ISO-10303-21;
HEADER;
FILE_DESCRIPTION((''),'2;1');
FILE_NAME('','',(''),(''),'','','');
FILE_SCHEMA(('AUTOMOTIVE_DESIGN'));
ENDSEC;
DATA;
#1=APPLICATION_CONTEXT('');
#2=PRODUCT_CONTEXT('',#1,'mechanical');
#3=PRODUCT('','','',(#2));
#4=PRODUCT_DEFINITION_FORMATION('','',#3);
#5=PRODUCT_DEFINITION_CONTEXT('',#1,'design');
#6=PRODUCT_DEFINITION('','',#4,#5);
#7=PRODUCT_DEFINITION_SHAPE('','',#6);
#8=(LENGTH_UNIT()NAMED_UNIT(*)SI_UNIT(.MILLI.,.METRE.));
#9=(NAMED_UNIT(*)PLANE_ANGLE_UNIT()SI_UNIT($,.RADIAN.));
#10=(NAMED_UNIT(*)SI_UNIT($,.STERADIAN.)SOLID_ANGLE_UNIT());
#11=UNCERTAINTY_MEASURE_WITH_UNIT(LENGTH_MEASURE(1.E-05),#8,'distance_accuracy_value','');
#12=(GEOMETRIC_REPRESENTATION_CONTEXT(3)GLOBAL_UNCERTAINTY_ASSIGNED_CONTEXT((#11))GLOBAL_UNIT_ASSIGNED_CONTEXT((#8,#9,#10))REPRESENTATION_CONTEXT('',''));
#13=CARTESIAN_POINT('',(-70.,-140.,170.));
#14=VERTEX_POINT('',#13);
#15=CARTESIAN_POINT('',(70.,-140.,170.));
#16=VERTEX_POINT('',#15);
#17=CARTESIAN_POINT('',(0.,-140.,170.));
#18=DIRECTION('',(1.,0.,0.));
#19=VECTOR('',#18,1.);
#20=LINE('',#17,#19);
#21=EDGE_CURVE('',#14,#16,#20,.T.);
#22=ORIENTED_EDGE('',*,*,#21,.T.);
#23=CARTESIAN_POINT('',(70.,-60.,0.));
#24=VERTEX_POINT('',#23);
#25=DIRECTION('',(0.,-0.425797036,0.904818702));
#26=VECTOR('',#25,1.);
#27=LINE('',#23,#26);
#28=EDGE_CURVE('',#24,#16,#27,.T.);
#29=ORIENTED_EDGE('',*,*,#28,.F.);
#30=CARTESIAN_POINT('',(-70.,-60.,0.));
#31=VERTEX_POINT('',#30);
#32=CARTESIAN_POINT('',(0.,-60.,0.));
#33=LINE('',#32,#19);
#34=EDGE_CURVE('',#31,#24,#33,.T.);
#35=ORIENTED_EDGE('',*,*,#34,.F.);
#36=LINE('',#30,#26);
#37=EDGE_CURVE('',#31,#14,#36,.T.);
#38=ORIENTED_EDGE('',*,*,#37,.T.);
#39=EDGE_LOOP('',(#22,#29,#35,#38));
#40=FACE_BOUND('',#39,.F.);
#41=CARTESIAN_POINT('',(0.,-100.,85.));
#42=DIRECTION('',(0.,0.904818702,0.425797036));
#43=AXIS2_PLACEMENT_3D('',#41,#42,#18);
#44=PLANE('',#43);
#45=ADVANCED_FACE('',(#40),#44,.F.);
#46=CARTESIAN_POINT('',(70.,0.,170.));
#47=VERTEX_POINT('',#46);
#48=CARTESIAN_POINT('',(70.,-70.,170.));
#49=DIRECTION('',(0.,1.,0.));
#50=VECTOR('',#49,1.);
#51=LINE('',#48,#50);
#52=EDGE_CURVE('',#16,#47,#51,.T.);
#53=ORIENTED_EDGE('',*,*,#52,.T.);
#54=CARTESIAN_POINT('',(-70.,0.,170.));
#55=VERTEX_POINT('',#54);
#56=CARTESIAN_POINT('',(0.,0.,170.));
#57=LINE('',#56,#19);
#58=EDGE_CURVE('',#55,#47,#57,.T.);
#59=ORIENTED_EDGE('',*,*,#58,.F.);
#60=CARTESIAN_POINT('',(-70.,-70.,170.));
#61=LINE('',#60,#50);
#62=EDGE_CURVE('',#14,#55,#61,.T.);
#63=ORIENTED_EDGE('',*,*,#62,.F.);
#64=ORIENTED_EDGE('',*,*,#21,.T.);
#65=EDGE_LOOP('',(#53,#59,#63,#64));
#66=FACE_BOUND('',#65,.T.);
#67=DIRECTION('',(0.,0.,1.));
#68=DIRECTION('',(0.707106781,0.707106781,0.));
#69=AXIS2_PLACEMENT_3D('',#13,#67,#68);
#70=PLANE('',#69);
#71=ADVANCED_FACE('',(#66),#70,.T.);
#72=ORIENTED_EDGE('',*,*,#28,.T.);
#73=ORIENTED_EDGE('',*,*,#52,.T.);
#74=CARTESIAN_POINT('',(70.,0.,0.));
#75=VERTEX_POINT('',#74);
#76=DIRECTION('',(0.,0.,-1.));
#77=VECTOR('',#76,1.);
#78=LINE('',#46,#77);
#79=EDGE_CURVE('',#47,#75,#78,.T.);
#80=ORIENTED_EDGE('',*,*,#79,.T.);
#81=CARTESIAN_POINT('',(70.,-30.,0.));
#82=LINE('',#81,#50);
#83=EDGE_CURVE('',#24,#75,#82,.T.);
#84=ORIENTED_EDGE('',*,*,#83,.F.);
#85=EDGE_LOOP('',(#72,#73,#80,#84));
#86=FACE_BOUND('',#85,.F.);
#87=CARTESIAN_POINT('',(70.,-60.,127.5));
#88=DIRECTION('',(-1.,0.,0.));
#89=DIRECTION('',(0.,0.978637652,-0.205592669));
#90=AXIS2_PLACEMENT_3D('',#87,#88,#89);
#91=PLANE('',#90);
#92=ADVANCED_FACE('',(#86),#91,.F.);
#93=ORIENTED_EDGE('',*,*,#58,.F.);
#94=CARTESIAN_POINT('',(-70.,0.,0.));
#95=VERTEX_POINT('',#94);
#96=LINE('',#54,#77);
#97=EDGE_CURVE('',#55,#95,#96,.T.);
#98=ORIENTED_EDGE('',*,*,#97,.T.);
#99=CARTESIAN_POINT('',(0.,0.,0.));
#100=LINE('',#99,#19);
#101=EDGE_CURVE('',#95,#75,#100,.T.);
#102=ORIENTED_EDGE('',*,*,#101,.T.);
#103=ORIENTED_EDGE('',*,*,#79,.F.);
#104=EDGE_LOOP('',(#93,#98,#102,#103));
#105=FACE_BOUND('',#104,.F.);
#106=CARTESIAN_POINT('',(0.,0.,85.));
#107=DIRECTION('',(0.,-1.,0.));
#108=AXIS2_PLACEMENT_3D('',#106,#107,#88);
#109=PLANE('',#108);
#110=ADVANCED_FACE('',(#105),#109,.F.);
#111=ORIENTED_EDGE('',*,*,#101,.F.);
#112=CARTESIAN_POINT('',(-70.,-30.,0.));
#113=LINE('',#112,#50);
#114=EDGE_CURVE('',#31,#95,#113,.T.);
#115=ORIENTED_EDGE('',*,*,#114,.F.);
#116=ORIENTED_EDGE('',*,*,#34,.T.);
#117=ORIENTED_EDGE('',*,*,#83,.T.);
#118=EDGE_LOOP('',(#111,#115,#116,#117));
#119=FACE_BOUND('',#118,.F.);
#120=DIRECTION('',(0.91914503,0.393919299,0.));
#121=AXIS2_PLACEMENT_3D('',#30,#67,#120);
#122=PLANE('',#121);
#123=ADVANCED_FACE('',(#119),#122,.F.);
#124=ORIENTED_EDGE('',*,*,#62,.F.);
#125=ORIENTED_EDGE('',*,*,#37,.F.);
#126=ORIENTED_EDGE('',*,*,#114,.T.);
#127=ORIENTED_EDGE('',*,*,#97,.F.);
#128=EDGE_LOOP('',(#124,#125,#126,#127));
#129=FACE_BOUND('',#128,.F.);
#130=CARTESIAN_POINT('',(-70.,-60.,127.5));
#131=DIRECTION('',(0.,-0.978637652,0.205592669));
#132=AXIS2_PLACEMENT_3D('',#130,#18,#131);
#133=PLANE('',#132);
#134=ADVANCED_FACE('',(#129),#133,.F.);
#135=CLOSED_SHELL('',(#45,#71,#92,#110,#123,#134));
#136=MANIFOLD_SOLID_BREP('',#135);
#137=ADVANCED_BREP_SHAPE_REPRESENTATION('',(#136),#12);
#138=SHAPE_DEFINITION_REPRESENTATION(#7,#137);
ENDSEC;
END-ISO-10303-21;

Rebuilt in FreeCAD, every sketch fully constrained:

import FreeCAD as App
import Part
import Sketcher


def add_polygon(sketch, points):
    """Adds a closed chain of lines whose ends are joined by coincident constraints."""
    first, n = sketch.GeometryCount, len(points)
    for a, b in zip(points, points[1:] + points[:1]):
        sketch.addGeometry(Part.LineSegment(App.Vector(*a, 0), App.Vector(*b, 0)), False)
    for i in range(n):
        sketch.addConstraint(Sketcher.Constraint("Coincident", first + i, 2, first + (i + 1) % n, 1))

doc = App.newDocument("Part")
body = doc.addObject("PartDesign::Body", "Body")

sketch1 = doc.addObject("Sketcher::SketchObject", "Sketch")
body.addObject(sketch1)
sketch1.AttachmentSupport = (doc.XY_Plane, [""])
sketch1.MapMode = "FlatFace"
sketch1.AttachmentOffset = App.Placement(App.Vector(0, 0, 170), App.Rotation())
add_polygon(sketch1, [(-70, 0), (-70, -140), (70, -140), (70, 0)])
sketch1.addConstraint(Sketcher.Constraint("Vertical", 0))
sketch1.addConstraint(Sketcher.Constraint("Horizontal", 1))
sketch1.addConstraint(Sketcher.Constraint("Vertical", 2))
sketch1.addConstraint(Sketcher.Constraint("Horizontal", 3))
sketch1.addConstraint(Sketcher.Constraint("Symmetric", 2, 2, 3, 2, -1, 1))
sketch1.addConstraint(Sketcher.Constraint("Equal", 3, 0))
sketch1.addConstraint(Sketcher.Constraint("DistanceX", 1, 1, 1, 2, 140.0))

sketch2 = doc.addObject("Sketcher::SketchObject", "Sketch001")
body.addObject(sketch2)
sketch2.AttachmentSupport = (doc.XY_Plane, [""])
sketch2.MapMode = "FlatFace"
sketch2.AttachmentOffset = App.Placement(App.Vector(0, 0, 85), App.Rotation())
add_polygon(sketch2, [(-70, 0), (-70, -100), (70, -100), (70, 0)])
sketch2.addConstraint(Sketcher.Constraint("Vertical", 0))
sketch2.addConstraint(Sketcher.Constraint("Horizontal", 1))
sketch2.addConstraint(Sketcher.Constraint("Vertical", 2))
sketch2.addConstraint(Sketcher.Constraint("Horizontal", 3))
sketch2.addConstraint(Sketcher.Constraint("Symmetric", 2, 2, 3, 2, -1, 1))
sketch2.addConstraint(Sketcher.Constraint("DistanceX", 1, 1, 1, 2, 140.0))
sketch2.addConstraint(Sketcher.Constraint("DistanceY", 0, 2, 0, 1, 100.0))

additiveloft = doc.addObject("PartDesign::AdditiveLoft", "AdditiveLoft")
body.addObject(additiveloft)
additiveloft.Profile = sketch1
additiveloft.Sections = [sketch2]

sketch3 = doc.addObject("Sketcher::SketchObject", "Sketch002")
body.addObject(sketch3)
sketch3.AttachmentSupport = (doc.XY_Plane, [""])
sketch3.MapMode = "FlatFace"
sketch3.AttachmentOffset = App.Placement(App.Vector(0, 0, 170), App.Rotation())
add_polygon(sketch3, [(-70, 0), (-70, -140), (70, -140), (70, 0)])
sketch3.addConstraint(Sketcher.Constraint("Vertical", 0))
sketch3.addConstraint(Sketcher.Constraint("Horizontal", 1))
sketch3.addConstraint(Sketcher.Constraint("Vertical", 2))
sketch3.addConstraint(Sketcher.Constraint("Horizontal", 3))
sketch3.addConstraint(Sketcher.Constraint("Symmetric", 2, 2, 3, 2, -1, 1))
sketch3.addConstraint(Sketcher.Constraint("Equal", 3, 0))
sketch3.addConstraint(Sketcher.Constraint("DistanceX", 1, 1, 1, 2, 140.0))

sketch4 = doc.addObject("Sketcher::SketchObject", "Sketch003")
body.addObject(sketch4)
sketch4.AttachmentSupport = (doc.XY_Plane, [""])
sketch4.MapMode = "FlatFace"
add_polygon(sketch4, [(-70, 0), (-70, -60), (70, -60), (70, 0)])
sketch4.addConstraint(Sketcher.Constraint("Vertical", 0))
sketch4.addConstraint(Sketcher.Constraint("Horizontal", 1))
sketch4.addConstraint(Sketcher.Constraint("Vertical", 2))
sketch4.addConstraint(Sketcher.Constraint("Horizontal", 3))
sketch4.addConstraint(Sketcher.Constraint("Symmetric", 2, 2, 3, 2, -1, 1))
sketch4.addConstraint(Sketcher.Constraint("DistanceX", 1, 1, 1, 2, 140.0))
sketch4.addConstraint(Sketcher.Constraint("DistanceY", 0, 2, 0, 1, 60.0))

additiveloft2 = doc.addObject("PartDesign::AdditiveLoft", "AdditiveLoft001")
body.addObject(additiveloft2)
additiveloft2.Profile = sketch3
additiveloft2.Sections = [sketch4]

doc.recompute()
